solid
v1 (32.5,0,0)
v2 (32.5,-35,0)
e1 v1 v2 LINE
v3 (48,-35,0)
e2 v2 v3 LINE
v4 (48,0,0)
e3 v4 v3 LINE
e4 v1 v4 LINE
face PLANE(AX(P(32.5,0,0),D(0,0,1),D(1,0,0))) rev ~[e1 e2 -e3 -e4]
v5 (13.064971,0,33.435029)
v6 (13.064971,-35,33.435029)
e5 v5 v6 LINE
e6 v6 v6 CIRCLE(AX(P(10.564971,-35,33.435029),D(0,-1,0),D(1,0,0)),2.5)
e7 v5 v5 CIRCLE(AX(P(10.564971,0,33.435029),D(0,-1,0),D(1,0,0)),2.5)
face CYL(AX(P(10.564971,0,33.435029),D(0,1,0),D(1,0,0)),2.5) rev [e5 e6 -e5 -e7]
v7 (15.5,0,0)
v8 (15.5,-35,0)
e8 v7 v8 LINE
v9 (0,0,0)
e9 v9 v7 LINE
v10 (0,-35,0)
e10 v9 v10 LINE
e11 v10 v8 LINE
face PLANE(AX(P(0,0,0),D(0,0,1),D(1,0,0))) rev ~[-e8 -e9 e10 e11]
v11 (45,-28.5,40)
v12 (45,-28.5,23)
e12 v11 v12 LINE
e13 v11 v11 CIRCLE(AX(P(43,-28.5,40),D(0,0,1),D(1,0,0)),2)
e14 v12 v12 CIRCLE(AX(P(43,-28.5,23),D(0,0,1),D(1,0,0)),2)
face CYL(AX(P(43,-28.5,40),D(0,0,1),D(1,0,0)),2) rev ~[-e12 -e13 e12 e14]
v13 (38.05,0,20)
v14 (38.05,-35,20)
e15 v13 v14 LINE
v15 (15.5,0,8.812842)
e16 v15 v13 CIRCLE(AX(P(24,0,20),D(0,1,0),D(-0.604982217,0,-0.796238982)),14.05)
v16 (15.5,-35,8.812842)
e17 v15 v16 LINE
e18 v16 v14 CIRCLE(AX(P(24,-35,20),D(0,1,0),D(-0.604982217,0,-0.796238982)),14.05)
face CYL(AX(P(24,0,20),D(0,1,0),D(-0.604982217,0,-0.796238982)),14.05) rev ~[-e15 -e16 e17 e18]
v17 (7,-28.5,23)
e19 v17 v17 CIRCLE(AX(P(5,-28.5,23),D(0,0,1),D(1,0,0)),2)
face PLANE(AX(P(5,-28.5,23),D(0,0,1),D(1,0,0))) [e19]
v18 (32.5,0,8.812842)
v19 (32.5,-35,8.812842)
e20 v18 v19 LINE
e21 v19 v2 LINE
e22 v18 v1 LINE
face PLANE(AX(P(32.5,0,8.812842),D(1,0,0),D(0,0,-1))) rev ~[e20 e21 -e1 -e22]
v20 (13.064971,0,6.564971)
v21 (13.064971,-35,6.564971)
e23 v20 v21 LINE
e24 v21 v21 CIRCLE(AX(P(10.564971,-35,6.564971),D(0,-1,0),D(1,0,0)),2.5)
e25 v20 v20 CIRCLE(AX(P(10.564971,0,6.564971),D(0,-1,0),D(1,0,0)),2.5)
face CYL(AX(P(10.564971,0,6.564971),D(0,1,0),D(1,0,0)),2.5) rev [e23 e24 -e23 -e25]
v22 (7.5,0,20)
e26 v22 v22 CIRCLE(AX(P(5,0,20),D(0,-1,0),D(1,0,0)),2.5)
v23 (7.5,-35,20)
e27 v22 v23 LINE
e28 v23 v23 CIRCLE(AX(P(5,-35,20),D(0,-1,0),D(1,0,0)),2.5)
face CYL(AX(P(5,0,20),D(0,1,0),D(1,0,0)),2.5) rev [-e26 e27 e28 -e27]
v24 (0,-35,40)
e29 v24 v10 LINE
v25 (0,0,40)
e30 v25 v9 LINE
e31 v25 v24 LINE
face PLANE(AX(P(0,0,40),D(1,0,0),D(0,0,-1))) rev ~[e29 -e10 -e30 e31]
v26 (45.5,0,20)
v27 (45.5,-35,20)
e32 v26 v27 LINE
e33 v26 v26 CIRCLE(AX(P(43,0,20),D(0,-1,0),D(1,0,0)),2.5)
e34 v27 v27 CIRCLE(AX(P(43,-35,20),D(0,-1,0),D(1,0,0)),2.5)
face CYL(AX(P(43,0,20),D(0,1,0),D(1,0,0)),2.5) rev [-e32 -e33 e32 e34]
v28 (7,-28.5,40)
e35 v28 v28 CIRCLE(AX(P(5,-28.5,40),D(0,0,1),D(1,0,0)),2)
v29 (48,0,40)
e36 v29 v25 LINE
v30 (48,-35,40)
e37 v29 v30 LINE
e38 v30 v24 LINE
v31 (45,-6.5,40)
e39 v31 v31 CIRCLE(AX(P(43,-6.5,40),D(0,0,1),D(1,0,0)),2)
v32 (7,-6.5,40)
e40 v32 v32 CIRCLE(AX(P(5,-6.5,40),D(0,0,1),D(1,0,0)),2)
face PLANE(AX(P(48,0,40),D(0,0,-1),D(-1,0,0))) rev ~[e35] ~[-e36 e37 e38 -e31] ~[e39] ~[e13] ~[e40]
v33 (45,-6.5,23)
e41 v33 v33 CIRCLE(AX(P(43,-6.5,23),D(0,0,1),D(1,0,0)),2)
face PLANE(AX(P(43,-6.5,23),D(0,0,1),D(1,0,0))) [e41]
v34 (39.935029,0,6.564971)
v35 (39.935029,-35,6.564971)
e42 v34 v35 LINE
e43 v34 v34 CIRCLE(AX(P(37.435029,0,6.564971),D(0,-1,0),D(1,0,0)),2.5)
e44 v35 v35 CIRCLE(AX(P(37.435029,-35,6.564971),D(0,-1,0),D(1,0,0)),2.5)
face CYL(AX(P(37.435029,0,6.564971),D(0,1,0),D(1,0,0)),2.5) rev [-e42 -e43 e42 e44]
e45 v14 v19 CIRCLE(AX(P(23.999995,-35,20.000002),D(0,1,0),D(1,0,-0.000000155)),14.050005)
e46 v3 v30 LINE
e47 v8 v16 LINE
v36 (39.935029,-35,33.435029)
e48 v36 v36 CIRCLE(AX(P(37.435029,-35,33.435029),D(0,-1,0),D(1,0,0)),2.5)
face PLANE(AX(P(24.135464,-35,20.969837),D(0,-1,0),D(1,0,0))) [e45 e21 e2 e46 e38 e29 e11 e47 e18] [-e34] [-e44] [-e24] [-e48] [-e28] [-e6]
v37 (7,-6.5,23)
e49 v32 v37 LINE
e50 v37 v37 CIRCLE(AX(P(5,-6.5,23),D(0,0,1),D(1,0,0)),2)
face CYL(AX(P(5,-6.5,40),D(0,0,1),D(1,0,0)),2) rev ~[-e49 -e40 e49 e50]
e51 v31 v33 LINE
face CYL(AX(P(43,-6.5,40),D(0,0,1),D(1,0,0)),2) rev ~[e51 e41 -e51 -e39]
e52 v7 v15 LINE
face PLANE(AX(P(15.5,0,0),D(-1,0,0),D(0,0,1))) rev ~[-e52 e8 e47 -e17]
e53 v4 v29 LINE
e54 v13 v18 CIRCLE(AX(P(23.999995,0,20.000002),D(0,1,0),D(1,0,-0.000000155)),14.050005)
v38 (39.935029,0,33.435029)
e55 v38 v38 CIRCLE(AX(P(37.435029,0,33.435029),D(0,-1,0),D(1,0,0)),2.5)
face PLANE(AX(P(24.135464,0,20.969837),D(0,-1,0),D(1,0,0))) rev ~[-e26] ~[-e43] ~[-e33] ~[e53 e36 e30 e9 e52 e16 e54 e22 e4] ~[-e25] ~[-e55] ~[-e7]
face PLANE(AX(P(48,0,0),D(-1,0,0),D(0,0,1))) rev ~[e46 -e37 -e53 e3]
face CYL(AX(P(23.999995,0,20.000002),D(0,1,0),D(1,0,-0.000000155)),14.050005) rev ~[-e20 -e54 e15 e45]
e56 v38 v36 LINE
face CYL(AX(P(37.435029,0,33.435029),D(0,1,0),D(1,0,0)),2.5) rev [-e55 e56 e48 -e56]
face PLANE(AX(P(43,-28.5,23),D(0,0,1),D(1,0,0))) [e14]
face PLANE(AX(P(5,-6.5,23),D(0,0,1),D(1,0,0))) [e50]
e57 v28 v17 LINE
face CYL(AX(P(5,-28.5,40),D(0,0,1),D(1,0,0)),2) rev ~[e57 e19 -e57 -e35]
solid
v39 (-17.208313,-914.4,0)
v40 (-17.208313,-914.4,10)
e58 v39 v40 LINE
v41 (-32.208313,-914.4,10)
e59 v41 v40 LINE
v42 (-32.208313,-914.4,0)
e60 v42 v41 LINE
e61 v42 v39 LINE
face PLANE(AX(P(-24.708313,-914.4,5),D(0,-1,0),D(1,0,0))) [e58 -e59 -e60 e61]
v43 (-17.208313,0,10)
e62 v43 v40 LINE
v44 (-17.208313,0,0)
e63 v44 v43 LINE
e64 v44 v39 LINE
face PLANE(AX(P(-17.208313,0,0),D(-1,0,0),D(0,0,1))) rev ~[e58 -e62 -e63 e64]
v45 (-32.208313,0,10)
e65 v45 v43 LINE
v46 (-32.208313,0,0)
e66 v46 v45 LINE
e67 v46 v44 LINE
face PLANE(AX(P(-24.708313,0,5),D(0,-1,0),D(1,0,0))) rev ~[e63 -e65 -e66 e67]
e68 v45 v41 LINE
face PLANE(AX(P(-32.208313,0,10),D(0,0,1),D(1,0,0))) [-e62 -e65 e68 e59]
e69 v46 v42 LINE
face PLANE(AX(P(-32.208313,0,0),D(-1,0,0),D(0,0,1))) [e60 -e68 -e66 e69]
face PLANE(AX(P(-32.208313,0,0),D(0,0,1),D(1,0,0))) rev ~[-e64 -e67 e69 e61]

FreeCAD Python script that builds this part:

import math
import FreeCAD as App
import Part
import Sketcher

doc = App.newDocument("Part")
body = doc.addObject("PartDesign::Body", "Body")

# Sketch on XZ plane
sketch1 = body.newObject("Sketcher::SketchObject", "Sketch")
sketch1.AttachmentSupport = (doc.getObject("XZ_Plane"), [""])
sketch1.MapMode = "FlatFace"
sketch1.addGeometry([
    Part.LineSegment(App.Vector(0, 40, 0), App.Vector(0, 0, 0)),  # 0
    Part.LineSegment(App.Vector(0, 0, 0), App.Vector(15.5, 0, 0)),  # 1
    Part.LineSegment(App.Vector(15.5, 0, 0), App.Vector(15.5, 8.8, 0)),  # 2
    Part.ArcOfCircle(Part.Circle(App.Vector(24, 20, 0), App.Vector(0, 0, 1), 14), math.radians(0), math.radians(233)),  # 3
    Part.ArcOfCircle(Part.Circle(App.Vector(24, 20, 0), App.Vector(0, 0, 1), 14.1), math.radians(-53), math.radians(0)),  # 4
    Part.LineSegment(App.Vector(32.5, 8.8, 0), App.Vector(32.5, 0, 0)),  # 5
    Part.LineSegment(App.Vector(32.5, 0, 0), App.Vector(48, 0, 0)),  # 6
    Part.LineSegment(App.Vector(48, 0, 0), App.Vector(48, 40, 0)),  # 7
    Part.LineSegment(App.Vector(48, 40, 0), App.Vector(0, 40, 0)),  # 8
    Part.Circle(App.Vector(10.6, 6.6, 0), App.Vector(0, 0, 1), 2.5),  # 9
    Part.Circle(App.Vector(37.4, 6.6, 0), App.Vector(0, 0, 1), 2.5),  # 10
    Part.Circle(App.Vector(5, 20, 0), App.Vector(0, 0, 1), 2.5),  # 11
    Part.Circle(App.Vector(10.6, 33.4, 0), App.Vector(0, 0, 1), 2.5),  # 12
    Part.Circle(App.Vector(43, 20, 0), App.Vector(0, 0, 1), 2.5),  # 13
    Part.Circle(App.Vector(37.4, 33.4, 0), App.Vector(0, 0, 1), 2.5),  # 14
], False)
sketch1.addConstraint([
    Sketcher.Constraint("Coincident", 0, 2, 1, 1),
    Sketcher.Constraint("Coincident", 1, 2, 2, 1),
    Sketcher.Constraint("Coincident", 2, 2, 3, 2),
    Sketcher.Constraint("Tangent", 3, 1, 4, 2),
    Sketcher.Constraint("Coincident", 4, 1, 5, 1),
    Sketcher.Constraint("Coincident", 5, 2, 6, 1),
    Sketcher.Constraint("Coincident", 6, 2, 7, 1),
    Sketcher.Constraint("Coincident", 7, 2, 8, 1),
    Sketcher.Constraint("Coincident", 8, 2, 0, 1),
    Sketcher.Constraint("Vertical", 0),
    Sketcher.Constraint("Horizontal", 1),
    Sketcher.Constraint("Vertical", 2),
    Sketcher.Constraint("Vertical", 5),
    Sketcher.Constraint("Horizontal", 6),
    Sketcher.Constraint("Vertical", 7),
    Sketcher.Constraint("Horizontal", 8),
    Sketcher.Constraint("Coincident", 0, 2, -1, 1),
    Sketcher.Constraint("Equal", 9, 10),
    Sketcher.Constraint("Equal", 10, 11),
    Sketcher.Constraint("Equal", 11, 12),
    Sketcher.Constraint("Equal", 12, 13),
    Sketcher.Constraint("Equal", 13, 14),
    Sketcher.Constraint("PointOnObject", 5, 2, -1),
    Sketcher.Constraint("Horizontal", 9, 3, 10, 3),
    Sketcher.Constraint("Horizontal", 3, 3, 11, 3),
    Sketcher.Constraint("Horizontal", 11, 3, 13, 3),
    Sketcher.Constraint("Horizontal", 12, 3, 14, 3),
    Sketcher.Constraint("Horizontal", 13, 3, 3, 1),
    Sketcher.Constraint("Horizontal", 2, 2, 4, 1),
    Sketcher.Constraint("Vertical", 9, 3, 12, 3),
    Sketcher.Constraint("Vertical", 10, 3, 14, 3),
    Sketcher.Constraint("Equal", 1, 6),
    Sketcher.Constraint("Diameter", 9, 5.0),
    Sketcher.Constraint("DistanceX", 8, 2, 8, 1, 48.0),
    Sketcher.Constraint("DistanceY", 0, 2, 0, 1, 40.0),
    Sketcher.Constraint("Radius", 3, 14.05),
    Sketcher.Constraint("DistanceX", 1, 1, 1, 2, 15.5),
    Sketcher.Constraint("DistanceX", -1, 1, 3, 3, 24.0),
    Sketcher.Constraint("DistanceY", -1, 1, 3, 3, 20.0),
    Sketcher.Constraint("DistanceX", -1, 1, 11, 3, 5.0),
    Sketcher.Constraint("DistanceX", -1, 1, 13, 3, 43.0),
    Sketcher.Constraint("DistanceX", -1, 1, 9, 3, 10.564971),
    Sketcher.Constraint("DistanceY", -1, 1, 9, 3, 6.564971),
    Sketcher.Constraint("DistanceX", -1, 1, 10, 3, 37.435029),
    Sketcher.Constraint("DistanceY", -1, 1, 12, 3, 33.435029),
])
pad1 = body.newObject("PartDesign::Pad", "Pad")
pad1.Profile = sketch1
pad1.Length = 35

# Sketch on XY plane
sketch2 = body.newObject("Sketcher::SketchObject", "Sketch001")
sketch2.AttachmentSupport = (doc.getObject("XY_Plane"), [""])
sketch2.MapMode = "FlatFace"
sketch2.AttachmentOffset = App.Placement(App.Vector(0, 0, 40), App.Rotation())
sketch2.addGeometry([
    Part.Circle(App.Vector(43, -6.5, 0), App.Vector(0, 0, 1), 2),
    Part.Circle(App.Vector(43, -28.5, 0), App.Vector(0, 0, 1), 2),
    Part.Circle(App.Vector(5, -6.5, 0), App.Vector(0, 0, 1), 2),
    Part.Circle(App.Vector(5, -28.5, 0), App.Vector(0, 0, 1), 2),
], False)
sketch2.addConstraint([
    Sketcher.Constraint("Equal", 0, 1),
    Sketcher.Constraint("Equal", 1, 2),
    Sketcher.Constraint("Equal", 2, 3),
    Sketcher.Constraint("Horizontal", 0, 3, 2, 3),
    Sketcher.Constraint("Horizontal", 1, 3, 3, 3),
    Sketcher.Constraint("Vertical", 0, 3, 1, 3),
    Sketcher.Constraint("Vertical", 2, 3, 3, 3),
    Sketcher.Constraint("Diameter", 0, 4.0),
    Sketcher.Constraint("DistanceX", -1, 1, 0, 3, 43.0),
    Sketcher.Constraint("DistanceX", -1, 1, 2, 3, 5.0),
    Sketcher.Constraint("DistanceY", 1, 3, 0, 3, 22.0),
    Sketcher.Constraint("DistanceY", 0, 3, -1, 1, 6.5),
])
pocket1 = body.newObject("PartDesign::Pocket", "Pocket")
pocket1.Profile = sketch2
pocket1.Length = 17
body2 = doc.addObject("PartDesign::Body", "Body001")

# Sketch on XZ plane
sketch3 = body2.newObject("Sketcher::SketchObject", "Sketch002")
sketch3.AttachmentSupport = (doc.getObject("XZ_Plane001"), [""])
sketch3.MapMode = "FlatFace"
sketch3.addGeometry([
    Part.LineSegment(App.Vector(-32, 10, 0), App.Vector(-32, 0, 0)),
    Part.LineSegment(App.Vector(-32, 0, 0), App.Vector(-17, 0, 0)),
    Part.LineSegment(App.Vector(-17, 0, 0), App.Vector(-17, 10, 0)),
    Part.LineSegment(App.Vector(-17, 10, 0), App.Vector(-32, 10, 0)),
], False)
sketch3.addConstraint([
    Sketcher.Constraint("Coincident", 0, 2, 1, 1),
    Sketcher.Constraint("Coincident", 1, 2, 2, 1),
    Sketcher.Constraint("Coincident", 2, 2, 3, 1),
    Sketcher.Constraint("Coincident", 3, 2, 0, 1),
    Sketcher.Constraint("Vertical", 0),
    Sketcher.Constraint("Horizontal", 1),
    Sketcher.Constraint("Vertical", 2),
    Sketcher.Constraint("Horizontal", 3),
    Sketcher.Constraint("PointOnObject", 0, 2, -1),
    Sketcher.Constraint("DistanceX", 1, 1, 1, 2, 15.0),
    Sketcher.Constraint("DistanceY", 0, 2, 0, 1, 10.0),
    Sketcher.Constraint("DistanceX", 0, 2, -1, 1, 32.208313),
])
pad2 = body2.newObject("PartDesign::Pad", "Pad001")
pad2.Profile = sketch3
pad2.Length = 914.4

doc.recompute()
